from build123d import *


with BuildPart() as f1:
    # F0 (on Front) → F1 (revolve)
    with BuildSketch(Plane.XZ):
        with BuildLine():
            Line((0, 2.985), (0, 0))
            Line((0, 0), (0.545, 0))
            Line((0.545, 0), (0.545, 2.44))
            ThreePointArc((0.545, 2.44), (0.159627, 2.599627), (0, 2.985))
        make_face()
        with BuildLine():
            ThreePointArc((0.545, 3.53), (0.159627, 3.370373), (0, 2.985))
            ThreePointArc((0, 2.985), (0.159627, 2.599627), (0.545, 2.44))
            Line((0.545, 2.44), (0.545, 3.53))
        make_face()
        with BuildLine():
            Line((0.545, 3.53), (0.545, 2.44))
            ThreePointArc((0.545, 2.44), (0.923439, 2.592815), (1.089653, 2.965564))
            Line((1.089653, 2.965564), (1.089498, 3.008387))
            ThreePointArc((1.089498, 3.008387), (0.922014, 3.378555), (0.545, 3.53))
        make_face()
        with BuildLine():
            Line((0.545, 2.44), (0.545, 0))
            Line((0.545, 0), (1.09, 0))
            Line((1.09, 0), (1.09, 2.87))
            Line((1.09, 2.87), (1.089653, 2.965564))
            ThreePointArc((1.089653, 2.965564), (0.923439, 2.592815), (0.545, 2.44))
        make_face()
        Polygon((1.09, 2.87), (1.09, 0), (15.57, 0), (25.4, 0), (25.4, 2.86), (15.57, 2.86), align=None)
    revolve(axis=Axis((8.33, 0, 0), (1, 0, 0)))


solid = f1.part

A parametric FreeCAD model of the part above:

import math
import FreeCAD as App
import Part
import Sketcher

V = App.Vector
Q = App.Units.Quantity

doc = App.newDocument("Part")
body = doc.addObject("PartDesign::Body", "Body")

# Sketch on XZ plane
sketch1 = body.newObject("Sketcher::SketchObject", "Sketch")
sketch1.AttachmentSupport = (doc.getObject("XZ_Plane"), [""])
sketch1.MapMode = "FlatFace"
sketch1.addGeometry([
    Part.LineSegment(V(0, 2.985, 0), V(0, 0, 0)),  # 0
    Part.LineSegment(V(0, 0, 0), V(25.4, 0, 0)),  # 1
    Part.LineSegment(V(25.4, 0, 0), V(25.4, 2.86, 0)),  # 2
    Part.LineSegment(V(25.4, 2.86, 0), V(15.57, 2.86, 0)),  # 3
    Part.LineSegment(V(15.57, 2.86, 0), V(1.09, 2.87, 0)),  # 4
    Part.LineSegment(V(1.09, 2.87, 0), V(1.089653, 2.965564, 0)),  # 5
    Part.LineSegment(V(1.089653, 2.965564, 0), V(1.089498, 3.008387, 0)),  # 6
    Part.ArcOfCircle(Part.Circle(V(0.545, 2.985, 0), V(0, 0, 1), 0.545), math.radians(2.459409), math.radians(90.000021)),  # 7
    Part.ArcOfCircle(Part.Circle(V(0.545001, 2.984999, 0), V(0, 0, 1), 0.545001), math.radians(90.00007), math.radians(179.99993)),  # 8
], False)
sketch1.addConstraint([
    Sketcher.Constraint("Coincident", 0, 2, 1, 1),
    Sketcher.Constraint("Coincident", 1, 2, 2, 1),
    Sketcher.Constraint("Coincident", 2, 2, 3, 1),
    Sketcher.Constraint("Coincident", 3, 2, 4, 1),
    Sketcher.Constraint("Coincident", 4, 2, 5, 1),
    Sketcher.Constraint("Coincident", 5, 2, 6, 1),
    Sketcher.Constraint("Coincident", 6, 2, 7, 1),
    Sketcher.Constraint("Tangent", 7, 2, 8, 1),
    Sketcher.Constraint("Tangent", 8, 2, 0, 1),
    Sketcher.Constraint("Vertical", 0),
    Sketcher.Constraint("Horizontal", 1),
    Sketcher.Constraint("Vertical", 2),
    Sketcher.Constraint("Horizontal", 3),
    Sketcher.Constraint("Coincident", 0, 2, -1, 1),
    Sketcher.Constraint("Equal", 7, 8),
    Sketcher.Constraint("Vertical", 8, 3, 7, 2),
    Sketcher.Constraint("DistanceX", 1, 1, 1, 2, Q("1 in")),
    Sketcher.Constraint("Radius", 7, Q("0.545 mm")),
    Sketcher.Constraint("DistanceX", 3, 2, 3, 1, Q("9.83 mm")),
    Sketcher.Constraint("DistanceY", 0, 2, 0, 1, Q("2.985 mm")),
    Sketcher.Constraint("DistanceY", 2, 1, 2, 2, Q("2.86 mm")),
    Sketcher.Constraint("DistanceX", -1, 1, 4, 2, Q("1.09 mm")),
    Sketcher.Constraint("DistanceY", -1, 1, 4, 2, Q("2.87 mm")),
    Sketcher.Constraint("DistanceX", -1, 1, 6, 2, Q("1.089498 mm")),
    Sketcher.Constraint("Distance", 5, Q("0.095565 mm")),
    Sketcher.Constraint("DistanceX", -1, 1, 5, 2, Q("1.089653 mm")),
])
revolution = body.newObject("PartDesign::Revolution", "Revolution")
revolution.Profile = sketch1
revolution.ReferenceAxis = (sketch1, ["H_Axis"])
revolution.Angle = 360

doc.recompute()
